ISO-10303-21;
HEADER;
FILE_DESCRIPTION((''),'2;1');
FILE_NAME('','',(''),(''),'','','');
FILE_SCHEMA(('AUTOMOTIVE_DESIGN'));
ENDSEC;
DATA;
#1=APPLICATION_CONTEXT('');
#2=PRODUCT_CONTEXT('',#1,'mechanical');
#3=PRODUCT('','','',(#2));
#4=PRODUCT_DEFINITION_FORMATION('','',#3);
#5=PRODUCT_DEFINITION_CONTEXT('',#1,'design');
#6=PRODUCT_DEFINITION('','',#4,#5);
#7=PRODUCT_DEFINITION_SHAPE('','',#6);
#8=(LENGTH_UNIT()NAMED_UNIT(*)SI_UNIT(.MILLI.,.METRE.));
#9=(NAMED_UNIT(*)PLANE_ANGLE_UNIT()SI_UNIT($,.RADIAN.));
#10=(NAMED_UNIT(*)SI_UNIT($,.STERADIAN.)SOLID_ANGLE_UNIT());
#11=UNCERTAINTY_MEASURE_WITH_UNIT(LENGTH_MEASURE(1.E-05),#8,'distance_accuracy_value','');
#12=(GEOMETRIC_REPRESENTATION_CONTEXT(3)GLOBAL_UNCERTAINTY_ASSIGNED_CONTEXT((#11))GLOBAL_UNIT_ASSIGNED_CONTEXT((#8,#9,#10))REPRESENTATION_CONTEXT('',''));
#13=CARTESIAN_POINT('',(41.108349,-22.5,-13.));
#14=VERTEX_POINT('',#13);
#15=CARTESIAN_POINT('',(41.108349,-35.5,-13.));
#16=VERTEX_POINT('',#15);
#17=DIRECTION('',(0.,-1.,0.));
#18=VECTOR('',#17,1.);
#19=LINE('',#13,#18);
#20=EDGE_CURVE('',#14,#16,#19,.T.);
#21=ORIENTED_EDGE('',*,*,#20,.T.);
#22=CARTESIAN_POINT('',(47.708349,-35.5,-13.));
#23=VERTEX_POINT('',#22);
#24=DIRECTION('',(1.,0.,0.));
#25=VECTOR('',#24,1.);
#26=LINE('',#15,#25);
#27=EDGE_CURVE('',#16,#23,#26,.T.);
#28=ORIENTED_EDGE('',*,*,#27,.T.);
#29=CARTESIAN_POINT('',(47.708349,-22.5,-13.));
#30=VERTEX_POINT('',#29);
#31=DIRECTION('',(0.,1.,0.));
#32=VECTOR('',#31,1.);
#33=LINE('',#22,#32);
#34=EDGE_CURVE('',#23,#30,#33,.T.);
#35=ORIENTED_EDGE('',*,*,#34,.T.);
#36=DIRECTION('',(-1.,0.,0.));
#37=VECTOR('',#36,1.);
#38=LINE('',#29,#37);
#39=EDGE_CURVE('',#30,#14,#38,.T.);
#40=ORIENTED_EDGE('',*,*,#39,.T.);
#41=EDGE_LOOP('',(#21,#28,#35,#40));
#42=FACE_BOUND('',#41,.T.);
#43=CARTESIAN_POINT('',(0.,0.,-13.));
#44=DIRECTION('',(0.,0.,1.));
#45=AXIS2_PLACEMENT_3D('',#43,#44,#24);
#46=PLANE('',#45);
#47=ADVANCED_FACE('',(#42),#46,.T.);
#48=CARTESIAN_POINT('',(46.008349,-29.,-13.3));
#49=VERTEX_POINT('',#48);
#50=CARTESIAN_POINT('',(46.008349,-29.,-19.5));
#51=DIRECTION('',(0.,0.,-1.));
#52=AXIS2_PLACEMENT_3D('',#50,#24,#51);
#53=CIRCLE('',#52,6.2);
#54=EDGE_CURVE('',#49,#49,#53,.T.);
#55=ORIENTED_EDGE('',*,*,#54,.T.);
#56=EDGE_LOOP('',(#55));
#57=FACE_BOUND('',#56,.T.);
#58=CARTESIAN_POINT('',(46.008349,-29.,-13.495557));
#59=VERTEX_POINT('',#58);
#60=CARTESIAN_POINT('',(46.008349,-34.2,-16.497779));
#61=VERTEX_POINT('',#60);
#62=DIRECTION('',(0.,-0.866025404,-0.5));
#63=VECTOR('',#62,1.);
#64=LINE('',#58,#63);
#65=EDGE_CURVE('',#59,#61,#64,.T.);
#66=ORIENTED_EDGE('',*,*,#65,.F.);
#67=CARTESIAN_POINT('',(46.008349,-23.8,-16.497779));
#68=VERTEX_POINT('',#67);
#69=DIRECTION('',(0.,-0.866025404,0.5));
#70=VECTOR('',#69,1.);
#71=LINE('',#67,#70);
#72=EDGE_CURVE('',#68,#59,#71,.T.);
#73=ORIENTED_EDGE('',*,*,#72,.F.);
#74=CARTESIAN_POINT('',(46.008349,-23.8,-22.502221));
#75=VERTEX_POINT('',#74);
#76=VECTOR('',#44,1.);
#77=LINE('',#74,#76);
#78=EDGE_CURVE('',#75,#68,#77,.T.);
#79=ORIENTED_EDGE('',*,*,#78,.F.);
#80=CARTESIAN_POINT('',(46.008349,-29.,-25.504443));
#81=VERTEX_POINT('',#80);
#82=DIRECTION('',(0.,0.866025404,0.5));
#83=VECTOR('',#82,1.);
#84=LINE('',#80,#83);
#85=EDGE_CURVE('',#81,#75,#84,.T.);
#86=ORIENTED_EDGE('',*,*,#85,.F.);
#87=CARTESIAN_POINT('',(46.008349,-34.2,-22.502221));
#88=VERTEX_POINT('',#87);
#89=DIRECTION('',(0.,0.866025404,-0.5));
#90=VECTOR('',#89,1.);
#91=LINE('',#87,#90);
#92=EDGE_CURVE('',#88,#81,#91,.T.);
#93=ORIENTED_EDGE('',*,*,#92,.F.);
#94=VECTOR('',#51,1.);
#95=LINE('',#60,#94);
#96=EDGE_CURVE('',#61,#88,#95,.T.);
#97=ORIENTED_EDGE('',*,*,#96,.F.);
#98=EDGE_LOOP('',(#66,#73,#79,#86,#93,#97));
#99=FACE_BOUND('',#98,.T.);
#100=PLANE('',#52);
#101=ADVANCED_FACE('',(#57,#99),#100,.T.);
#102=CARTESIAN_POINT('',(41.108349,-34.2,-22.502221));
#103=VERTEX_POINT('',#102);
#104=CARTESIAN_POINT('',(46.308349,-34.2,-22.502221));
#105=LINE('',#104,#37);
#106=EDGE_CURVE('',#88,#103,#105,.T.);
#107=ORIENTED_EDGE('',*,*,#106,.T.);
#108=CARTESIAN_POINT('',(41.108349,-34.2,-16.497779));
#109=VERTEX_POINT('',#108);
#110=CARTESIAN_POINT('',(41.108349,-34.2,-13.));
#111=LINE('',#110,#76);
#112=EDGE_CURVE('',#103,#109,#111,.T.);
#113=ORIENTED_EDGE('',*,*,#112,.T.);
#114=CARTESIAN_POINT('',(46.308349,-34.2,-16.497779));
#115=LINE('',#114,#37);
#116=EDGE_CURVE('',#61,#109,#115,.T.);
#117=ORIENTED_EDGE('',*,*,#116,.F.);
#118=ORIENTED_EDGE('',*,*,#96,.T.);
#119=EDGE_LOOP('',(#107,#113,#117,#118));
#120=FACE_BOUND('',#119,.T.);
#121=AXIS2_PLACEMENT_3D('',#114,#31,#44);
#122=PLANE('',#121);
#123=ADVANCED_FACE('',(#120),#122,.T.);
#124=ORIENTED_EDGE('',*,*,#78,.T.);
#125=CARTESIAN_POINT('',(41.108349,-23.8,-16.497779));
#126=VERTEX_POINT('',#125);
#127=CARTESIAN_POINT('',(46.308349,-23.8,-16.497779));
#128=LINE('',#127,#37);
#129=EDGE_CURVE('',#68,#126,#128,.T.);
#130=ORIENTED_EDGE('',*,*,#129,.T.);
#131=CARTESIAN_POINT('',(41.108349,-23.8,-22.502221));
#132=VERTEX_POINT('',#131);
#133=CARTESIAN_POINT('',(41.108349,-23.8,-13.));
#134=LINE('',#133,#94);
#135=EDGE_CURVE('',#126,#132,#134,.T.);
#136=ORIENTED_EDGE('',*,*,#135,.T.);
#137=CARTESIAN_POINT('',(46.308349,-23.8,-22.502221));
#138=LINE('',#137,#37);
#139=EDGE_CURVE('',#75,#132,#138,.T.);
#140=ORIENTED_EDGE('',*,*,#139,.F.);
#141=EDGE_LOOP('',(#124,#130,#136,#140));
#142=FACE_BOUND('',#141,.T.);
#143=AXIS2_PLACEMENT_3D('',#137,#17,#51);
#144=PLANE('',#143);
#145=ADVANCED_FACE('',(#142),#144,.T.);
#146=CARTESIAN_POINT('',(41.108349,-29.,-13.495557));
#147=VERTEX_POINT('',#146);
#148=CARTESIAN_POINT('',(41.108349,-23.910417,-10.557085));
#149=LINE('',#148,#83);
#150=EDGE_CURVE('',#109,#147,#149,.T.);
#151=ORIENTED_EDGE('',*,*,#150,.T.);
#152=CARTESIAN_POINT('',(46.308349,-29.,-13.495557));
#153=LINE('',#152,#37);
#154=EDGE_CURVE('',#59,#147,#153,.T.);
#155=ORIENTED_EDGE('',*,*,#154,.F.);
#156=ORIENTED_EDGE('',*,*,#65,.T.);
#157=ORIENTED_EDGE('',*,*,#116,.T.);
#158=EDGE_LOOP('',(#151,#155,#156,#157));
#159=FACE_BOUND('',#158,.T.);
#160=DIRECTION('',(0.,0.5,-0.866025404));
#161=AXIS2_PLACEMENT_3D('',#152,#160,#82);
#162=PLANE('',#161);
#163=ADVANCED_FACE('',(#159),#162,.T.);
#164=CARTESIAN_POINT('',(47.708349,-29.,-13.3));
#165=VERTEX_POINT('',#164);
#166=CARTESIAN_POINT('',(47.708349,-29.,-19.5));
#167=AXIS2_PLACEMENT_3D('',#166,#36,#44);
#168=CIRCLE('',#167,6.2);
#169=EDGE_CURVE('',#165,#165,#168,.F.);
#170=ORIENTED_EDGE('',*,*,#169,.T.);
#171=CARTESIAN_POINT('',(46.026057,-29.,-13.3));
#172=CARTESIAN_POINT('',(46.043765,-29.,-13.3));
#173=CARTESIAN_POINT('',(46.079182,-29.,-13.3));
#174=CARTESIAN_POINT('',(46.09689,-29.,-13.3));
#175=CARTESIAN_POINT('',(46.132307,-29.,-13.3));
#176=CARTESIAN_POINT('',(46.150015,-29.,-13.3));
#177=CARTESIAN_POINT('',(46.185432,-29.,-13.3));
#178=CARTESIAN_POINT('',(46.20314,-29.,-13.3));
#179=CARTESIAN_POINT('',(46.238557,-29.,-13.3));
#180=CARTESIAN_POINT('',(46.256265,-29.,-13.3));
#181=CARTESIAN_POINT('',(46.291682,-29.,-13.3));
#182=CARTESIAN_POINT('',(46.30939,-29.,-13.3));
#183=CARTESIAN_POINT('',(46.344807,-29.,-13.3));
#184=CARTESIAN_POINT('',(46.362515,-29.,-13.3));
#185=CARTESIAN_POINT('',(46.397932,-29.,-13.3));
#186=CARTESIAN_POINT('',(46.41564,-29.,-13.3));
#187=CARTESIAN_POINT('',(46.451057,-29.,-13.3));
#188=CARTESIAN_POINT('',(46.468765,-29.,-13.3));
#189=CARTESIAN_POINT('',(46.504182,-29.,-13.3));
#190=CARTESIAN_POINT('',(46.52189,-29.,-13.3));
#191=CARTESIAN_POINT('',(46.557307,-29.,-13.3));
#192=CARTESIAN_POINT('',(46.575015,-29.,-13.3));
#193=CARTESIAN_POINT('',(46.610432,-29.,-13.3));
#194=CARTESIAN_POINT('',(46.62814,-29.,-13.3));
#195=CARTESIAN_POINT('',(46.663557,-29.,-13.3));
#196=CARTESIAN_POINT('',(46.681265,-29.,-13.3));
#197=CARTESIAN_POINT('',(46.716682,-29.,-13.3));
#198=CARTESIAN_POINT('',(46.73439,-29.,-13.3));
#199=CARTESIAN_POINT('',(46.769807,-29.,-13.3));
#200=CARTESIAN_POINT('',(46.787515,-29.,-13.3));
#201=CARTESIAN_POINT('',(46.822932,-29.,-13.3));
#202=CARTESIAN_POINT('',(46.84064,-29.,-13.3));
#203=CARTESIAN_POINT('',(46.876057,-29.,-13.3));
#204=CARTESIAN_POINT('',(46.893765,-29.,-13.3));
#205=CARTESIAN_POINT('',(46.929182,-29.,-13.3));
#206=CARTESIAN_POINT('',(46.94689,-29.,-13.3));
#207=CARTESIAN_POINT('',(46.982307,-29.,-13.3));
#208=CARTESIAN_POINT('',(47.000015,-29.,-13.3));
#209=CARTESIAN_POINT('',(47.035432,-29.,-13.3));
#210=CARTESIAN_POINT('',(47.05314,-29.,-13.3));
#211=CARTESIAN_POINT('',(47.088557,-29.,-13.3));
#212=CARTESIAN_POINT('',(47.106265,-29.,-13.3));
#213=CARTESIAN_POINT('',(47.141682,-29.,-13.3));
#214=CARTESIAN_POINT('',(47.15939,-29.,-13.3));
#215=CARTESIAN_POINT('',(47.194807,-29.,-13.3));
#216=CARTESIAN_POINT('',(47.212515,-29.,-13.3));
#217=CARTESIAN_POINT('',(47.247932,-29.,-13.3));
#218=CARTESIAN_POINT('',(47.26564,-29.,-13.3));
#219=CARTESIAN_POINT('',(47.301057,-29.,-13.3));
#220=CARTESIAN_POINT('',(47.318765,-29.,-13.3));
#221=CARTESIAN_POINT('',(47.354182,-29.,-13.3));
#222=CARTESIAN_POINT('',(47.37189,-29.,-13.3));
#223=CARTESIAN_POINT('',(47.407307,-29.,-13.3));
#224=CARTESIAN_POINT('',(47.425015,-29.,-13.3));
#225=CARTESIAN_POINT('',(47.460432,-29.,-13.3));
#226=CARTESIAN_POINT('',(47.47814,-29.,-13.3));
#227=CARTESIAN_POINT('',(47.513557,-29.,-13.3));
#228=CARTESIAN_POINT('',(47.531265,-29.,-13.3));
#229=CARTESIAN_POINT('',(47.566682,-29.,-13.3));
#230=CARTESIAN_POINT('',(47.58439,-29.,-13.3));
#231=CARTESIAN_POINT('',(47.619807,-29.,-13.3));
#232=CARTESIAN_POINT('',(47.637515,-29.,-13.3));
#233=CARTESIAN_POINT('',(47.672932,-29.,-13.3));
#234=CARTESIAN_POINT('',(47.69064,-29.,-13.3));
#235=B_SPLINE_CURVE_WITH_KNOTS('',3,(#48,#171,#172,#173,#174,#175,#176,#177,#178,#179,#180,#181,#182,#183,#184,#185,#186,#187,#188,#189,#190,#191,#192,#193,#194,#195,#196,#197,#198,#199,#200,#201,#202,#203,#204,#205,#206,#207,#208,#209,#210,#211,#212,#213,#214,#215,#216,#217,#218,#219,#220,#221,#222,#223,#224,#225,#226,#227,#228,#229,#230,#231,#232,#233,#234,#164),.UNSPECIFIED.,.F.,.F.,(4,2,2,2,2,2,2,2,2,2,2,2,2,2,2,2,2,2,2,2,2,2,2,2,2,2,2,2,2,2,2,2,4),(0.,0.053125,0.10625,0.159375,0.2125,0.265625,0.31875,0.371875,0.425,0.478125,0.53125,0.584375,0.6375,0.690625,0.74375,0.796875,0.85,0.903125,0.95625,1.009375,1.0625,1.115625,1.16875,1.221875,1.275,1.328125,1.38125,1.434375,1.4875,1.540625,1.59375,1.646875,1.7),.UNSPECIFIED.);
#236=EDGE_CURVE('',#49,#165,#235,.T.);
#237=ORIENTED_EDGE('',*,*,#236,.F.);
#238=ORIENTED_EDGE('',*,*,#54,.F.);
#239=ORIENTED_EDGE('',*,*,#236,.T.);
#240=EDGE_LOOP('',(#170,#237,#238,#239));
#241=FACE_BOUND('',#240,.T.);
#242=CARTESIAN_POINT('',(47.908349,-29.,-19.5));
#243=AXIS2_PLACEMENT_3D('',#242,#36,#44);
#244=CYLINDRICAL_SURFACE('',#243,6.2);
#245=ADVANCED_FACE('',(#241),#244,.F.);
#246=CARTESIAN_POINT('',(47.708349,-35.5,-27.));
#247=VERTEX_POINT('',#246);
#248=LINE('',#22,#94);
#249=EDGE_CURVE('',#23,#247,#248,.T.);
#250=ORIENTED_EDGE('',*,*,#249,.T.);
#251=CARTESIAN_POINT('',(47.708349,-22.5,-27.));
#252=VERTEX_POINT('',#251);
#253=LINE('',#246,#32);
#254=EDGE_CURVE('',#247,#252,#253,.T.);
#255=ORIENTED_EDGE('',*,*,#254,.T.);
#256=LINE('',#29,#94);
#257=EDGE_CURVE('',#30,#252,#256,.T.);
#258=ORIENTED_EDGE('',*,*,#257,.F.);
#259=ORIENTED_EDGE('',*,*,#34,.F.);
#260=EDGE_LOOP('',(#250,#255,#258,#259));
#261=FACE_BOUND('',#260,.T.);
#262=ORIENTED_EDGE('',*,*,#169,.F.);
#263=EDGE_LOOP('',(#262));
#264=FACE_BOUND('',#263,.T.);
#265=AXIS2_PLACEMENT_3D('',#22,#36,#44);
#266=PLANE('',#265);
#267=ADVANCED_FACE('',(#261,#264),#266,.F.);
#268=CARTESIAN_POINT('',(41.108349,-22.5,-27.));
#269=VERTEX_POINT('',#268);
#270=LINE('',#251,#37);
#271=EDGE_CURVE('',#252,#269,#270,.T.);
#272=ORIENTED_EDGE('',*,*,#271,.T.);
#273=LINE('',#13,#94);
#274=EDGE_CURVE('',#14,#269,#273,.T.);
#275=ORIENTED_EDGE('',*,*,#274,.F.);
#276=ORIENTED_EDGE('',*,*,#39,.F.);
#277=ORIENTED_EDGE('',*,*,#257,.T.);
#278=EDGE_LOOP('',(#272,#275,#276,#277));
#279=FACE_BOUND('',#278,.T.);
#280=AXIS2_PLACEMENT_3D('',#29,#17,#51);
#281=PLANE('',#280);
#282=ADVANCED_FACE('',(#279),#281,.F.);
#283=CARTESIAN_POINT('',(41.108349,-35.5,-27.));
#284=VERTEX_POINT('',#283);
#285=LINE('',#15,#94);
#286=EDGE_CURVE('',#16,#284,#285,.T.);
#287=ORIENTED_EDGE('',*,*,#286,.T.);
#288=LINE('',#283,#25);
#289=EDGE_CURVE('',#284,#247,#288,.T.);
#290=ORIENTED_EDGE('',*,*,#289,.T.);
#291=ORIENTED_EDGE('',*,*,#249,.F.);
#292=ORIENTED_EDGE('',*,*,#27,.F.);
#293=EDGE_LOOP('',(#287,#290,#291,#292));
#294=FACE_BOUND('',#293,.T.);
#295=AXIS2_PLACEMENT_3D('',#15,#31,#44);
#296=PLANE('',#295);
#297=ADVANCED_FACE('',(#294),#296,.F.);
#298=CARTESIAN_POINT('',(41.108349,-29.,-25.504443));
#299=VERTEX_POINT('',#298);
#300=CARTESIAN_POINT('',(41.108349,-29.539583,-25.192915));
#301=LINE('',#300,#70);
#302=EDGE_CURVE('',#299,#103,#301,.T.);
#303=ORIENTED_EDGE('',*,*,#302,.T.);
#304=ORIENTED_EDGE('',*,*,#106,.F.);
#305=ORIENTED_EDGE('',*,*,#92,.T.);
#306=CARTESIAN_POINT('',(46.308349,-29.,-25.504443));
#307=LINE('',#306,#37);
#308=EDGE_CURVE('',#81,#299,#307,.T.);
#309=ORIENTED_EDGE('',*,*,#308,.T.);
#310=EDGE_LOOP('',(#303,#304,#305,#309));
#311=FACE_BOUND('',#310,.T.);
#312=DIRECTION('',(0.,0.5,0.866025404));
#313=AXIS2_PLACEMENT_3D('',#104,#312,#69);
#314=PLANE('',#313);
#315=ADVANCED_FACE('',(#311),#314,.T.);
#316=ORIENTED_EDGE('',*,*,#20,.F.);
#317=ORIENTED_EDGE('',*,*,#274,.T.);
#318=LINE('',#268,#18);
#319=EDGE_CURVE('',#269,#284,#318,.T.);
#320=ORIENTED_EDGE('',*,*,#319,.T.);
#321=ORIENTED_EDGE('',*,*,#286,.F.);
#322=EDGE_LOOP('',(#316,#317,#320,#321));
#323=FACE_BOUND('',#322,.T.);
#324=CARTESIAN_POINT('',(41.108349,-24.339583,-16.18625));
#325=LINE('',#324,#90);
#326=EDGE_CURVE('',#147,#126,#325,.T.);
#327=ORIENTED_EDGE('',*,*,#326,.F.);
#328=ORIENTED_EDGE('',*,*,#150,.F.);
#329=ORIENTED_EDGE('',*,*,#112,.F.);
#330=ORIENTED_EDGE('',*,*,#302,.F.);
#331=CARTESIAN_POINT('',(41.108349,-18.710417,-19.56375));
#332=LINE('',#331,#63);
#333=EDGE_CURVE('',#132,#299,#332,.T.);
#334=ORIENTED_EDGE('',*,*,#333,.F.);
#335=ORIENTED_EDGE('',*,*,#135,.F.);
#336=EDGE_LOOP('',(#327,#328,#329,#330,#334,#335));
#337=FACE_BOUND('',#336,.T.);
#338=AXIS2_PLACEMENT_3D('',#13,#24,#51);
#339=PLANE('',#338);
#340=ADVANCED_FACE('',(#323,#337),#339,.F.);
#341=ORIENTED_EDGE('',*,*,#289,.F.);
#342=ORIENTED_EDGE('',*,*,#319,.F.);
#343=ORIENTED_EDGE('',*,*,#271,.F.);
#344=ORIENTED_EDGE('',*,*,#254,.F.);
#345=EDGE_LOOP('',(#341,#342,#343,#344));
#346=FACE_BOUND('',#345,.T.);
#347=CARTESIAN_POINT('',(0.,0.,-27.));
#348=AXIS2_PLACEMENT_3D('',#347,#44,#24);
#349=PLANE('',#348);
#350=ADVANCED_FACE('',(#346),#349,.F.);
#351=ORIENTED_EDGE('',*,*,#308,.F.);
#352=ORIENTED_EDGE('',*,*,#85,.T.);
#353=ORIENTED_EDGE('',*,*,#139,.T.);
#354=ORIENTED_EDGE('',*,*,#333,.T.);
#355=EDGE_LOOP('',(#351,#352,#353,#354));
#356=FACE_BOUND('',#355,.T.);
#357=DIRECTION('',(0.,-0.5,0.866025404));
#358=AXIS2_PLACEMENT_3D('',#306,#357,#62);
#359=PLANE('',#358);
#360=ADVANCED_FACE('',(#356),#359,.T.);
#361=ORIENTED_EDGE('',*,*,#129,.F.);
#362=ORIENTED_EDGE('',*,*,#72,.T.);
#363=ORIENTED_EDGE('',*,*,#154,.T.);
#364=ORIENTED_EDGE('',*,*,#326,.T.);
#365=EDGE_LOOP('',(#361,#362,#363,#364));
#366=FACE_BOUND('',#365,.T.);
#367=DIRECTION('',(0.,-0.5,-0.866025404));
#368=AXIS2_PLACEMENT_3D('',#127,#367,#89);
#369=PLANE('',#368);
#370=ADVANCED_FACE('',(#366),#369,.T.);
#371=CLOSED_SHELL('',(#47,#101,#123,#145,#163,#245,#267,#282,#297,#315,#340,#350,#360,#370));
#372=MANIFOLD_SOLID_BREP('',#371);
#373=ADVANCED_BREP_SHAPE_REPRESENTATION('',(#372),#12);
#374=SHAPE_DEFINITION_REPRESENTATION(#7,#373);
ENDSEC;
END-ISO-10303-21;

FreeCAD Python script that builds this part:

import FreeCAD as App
import Part
import Sketcher
from FreeCAD import Vector
Q = App.Units.Quantity

doc = App.newDocument("Part")
body = doc.addObject("PartDesign::Body", "Body")

# Sketch on XY plane
sketch1 = body.newObject("Sketcher::SketchObject", "Sketch")
sketch1.AttachmentSupport = (doc.getObject("XY_Plane"), [""])
sketch1.MapMode = "FlatFace"
sketch1.AttachmentOffset = App.Placement(Vector(0, 0, -27), App.Rotation())
sketch1.addGeometry([
    Part.LineSegment(Vector(41, -22, 0), Vector(41, -36, 0)),
    Part.LineSegment(Vector(41, -36, 0), Vector(48, -36, 0)),
    Part.LineSegment(Vector(48, -36, 0), Vector(48, -22, 0)),
    Part.LineSegment(Vector(48, -22, 0), Vector(41, -22, 0)),
], False)
sketch1.addConstraint([
    Sketcher.Constraint("Coincident", 0, 2, 1, 1),
    Sketcher.Constraint("Coincident", 1, 2, 2, 1),
    Sketcher.Constraint("Coincident", 2, 2, 3, 1),
    Sketcher.Constraint("Coincident", 3, 2, 0, 1),
    Sketcher.Constraint("Vertical", 0),
    Sketcher.Constraint("Horizontal", 1),
    Sketcher.Constraint("Vertical", 2),
    Sketcher.Constraint("Horizontal", 3),
    Sketcher.Constraint("DistanceY", 0, 2, 0, 1, Q("13 mm")),
    Sketcher.Constraint("DistanceX", 1, 1, 1, 2, Q("6.6 mm")),
    Sketcher.Constraint("DistanceY", 0, 2, -1, 1, Q("35.5 mm")),
    Sketcher.Constraint("DistanceX", -1, 1, 0, 2, Q("41.108349 mm")),
])
pad1 = body.newObject("PartDesign::Pad", "Pad")
pad1.Profile = sketch1
pad1.Length = 14

# Sketch on YZ plane
sketch2 = body.newObject("Sketcher::SketchObject", "Sketch001")
sketch2.AttachmentSupport = (doc.getObject("YZ_Plane"), [""])
sketch2.MapMode = "FlatFace"
sketch2.AttachmentOffset = App.Placement(Vector(0, 0, 41.008349), App.Rotation())
sketch2.addGeometry([
    Part.LineSegment(Vector(-24, -16, 0), Vector(-29, -13, 0)),  # 0
    Part.LineSegment(Vector(-29, -13, 0), Vector(-34, -16, 0)),  # 1
    Part.LineSegment(Vector(-34, -16, 0), Vector(-34, -23, 0)),  # 2
    Part.LineSegment(Vector(-34, -23, 0), Vector(-29, -26, 0)),  # 3
    Part.LineSegment(Vector(-29, -26, 0), Vector(-24, -23, 0)),  # 4
    Part.LineSegment(Vector(-24, -23, 0), Vector(-24, -16, 0)),  # 5
], False)
sketch2.addConstraint([
    Sketcher.Constraint("Coincident", 0, 2, 1, 1),
    Sketcher.Constraint("Coincident", 1, 2, 2, 1),
    Sketcher.Constraint("Coincident", 2, 2, 3, 1),
    Sketcher.Constraint("Coincident", 3, 2, 4, 1),
    Sketcher.Constraint("Coincident", 4, 2, 5, 1),
    Sketcher.Constraint("Coincident", 5, 2, 0, 1),
    Sketcher.Constraint("Vertical", 2),
    Sketcher.Constraint("Vertical", 5),
    Sketcher.Constraint("Parallel", 0, 3),
    Sketcher.Constraint("Parallel", 1, 4),
    Sketcher.Constraint("Horizontal", 2, 2, 4, 2),
    Sketcher.Constraint("Horizontal", 1, 2, 5, 2),
    Sketcher.Constraint("Vertical", 0, 2, 3, 2),
    Sketcher.Constraint("Angle", 0, Q("150 deg")),
    Sketcher.Constraint("DistanceX", 0, 2, -1, 1, Q("29 mm")),
    Sketcher.Constraint("DistanceX", 1, 2, -1, 1, Q("34.2 mm")),
    Sketcher.Constraint("DistanceY", 2, 2, 2, 1, Q("6.004443 mm")),
    Sketcher.Constraint("DistanceY", 1, 2, -1, 1, Q("16.497779 mm")),
])
pocket1 = body.newObject("PartDesign::Pocket", "Pocket")
pocket1.Profile = sketch2
pocket1.Length = 5.3
pocket1.Reversed = True

# Sketch on YZ plane
sketch3 = body.newObject("Sketcher::SketchObject", "Sketch002")
sketch3.AttachmentSupport = (doc.getObject("YZ_Plane"), [""])
sketch3.MapMode = "FlatFace"
sketch3.AttachmentOffset = App.Placement(Vector(0, 0, 46.008349), App.Rotation())
sketch3.addGeometry(Part.Circle(Vector(-29, -20, 0), Vector(0, 0, 1), 6), False)
sketch3.addConstraint([
    Sketcher.Constraint("Diameter", 0, Q("12.4 mm")),
    Sketcher.Constraint("DistanceX", 0, 3, -1, 1, Q("29 mm")),
    Sketcher.Constraint("DistanceY", 0, 3, -1, 1, Q("19.5 mm")),
])
pocket2 = body.newObject("PartDesign::Pocket", "Pocket001")
pocket2.Profile = sketch3
pocket2.Length = 1.9
pocket2.Reversed = True

doc.recompute()
